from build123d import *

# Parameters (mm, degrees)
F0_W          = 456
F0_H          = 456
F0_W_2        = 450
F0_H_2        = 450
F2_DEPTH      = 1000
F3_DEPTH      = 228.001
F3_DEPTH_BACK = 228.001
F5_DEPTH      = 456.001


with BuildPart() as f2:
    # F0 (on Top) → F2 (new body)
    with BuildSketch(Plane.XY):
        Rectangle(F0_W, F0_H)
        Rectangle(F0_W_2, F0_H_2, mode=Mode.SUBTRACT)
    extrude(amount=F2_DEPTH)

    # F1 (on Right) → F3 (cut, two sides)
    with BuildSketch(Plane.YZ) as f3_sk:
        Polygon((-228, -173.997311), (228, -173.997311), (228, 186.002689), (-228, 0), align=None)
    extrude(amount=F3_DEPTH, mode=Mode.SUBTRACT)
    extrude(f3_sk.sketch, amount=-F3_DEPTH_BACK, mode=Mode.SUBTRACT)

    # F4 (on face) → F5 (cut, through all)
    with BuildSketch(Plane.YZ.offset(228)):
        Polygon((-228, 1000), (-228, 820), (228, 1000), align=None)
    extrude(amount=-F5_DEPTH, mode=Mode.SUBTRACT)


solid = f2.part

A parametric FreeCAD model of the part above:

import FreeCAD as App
import Part
import Sketcher
from FreeCAD import Vector
Q = App.Units.Quantity

doc = App.newDocument("Part")
body = doc.addObject("PartDesign::Body", "Body")

sketch1 = body.newObject("Sketcher::SketchObject", "Sketch")
sketch1.AttachmentSupport = (doc.getObject("XY_Plane"), [""])
sketch1.MapMode = "FlatFace"
sketch1.addGeometry(Part.LineSegment(Vector(-228, 228, 0), Vector(-228, -228, 0)), False)
sketch1.addGeometry(Part.LineSegment(Vector(-228, -228, 0), Vector(228, -228, 0)), False)
sketch1.addGeometry(Part.LineSegment(Vector(228, -228, 0), Vector(228, 228, 0)), False)
sketch1.addGeometry(Part.LineSegment(Vector(228, 228, 0), Vector(-228, 228, 0)), False)
sketch1.addGeometry(Part.LineSegment(Vector(225, -225, 0), Vector(-225, -225, 0)), False)
sketch1.addGeometry(Part.LineSegment(Vector(-225, -225, 0), Vector(-225, 225, 0)), False)
sketch1.addGeometry(Part.LineSegment(Vector(-225, 225, 0), Vector(225, 225, 0)), False)
sketch1.addGeometry(Part.LineSegment(Vector(225, 225, 0), Vector(225, -225, 0)), False)
sketch1.addConstraint(Sketcher.Constraint("Coincident", 0, 2, 1, 1))
sketch1.addConstraint(Sketcher.Constraint("Coincident", 1, 2, 2, 1))
sketch1.addConstraint(Sketcher.Constraint("Coincident", 2, 2, 3, 1))
sketch1.addConstraint(Sketcher.Constraint("Coincident", 3, 2, 0, 1))
sketch1.addConstraint(Sketcher.Constraint("Coincident", 4, 2, 5, 1))
sketch1.addConstraint(Sketcher.Constraint("Coincident", 5, 2, 6, 1))
sketch1.addConstraint(Sketcher.Constraint("Coincident", 6, 2, 7, 1))
sketch1.addConstraint(Sketcher.Constraint("Coincident", 7, 2, 4, 1))
sketch1.addConstraint(Sketcher.Constraint("Vertical", 0))
sketch1.addConstraint(Sketcher.Constraint("Horizontal", 1))
sketch1.addConstraint(Sketcher.Constraint("Vertical", 2))
sketch1.addConstraint(Sketcher.Constraint("Horizontal", 3))
sketch1.addConstraint(Sketcher.Constraint("Horizontal", 4))
sketch1.addConstraint(Sketcher.Constraint("Vertical", 5))
sketch1.addConstraint(Sketcher.Constraint("Horizontal", 6))
sketch1.addConstraint(Sketcher.Constraint("Vertical", 7))
sketch1.addConstraint(Sketcher.Constraint("Symmetric", 0, 2, 2, 2, -1, 1))
sketch1.addConstraint(Sketcher.Constraint("Symmetric", 4, 2, 6, 2, -1, 1))
sketch1.addConstraint(Sketcher.Constraint("Equal", 3, 0))
sketch1.addConstraint(Sketcher.Constraint("Equal", 6, 5))
sketch1.addConstraint(Sketcher.Constraint("DistanceX", 1, 1, 1, 2, Q("456 mm")))
sketch1.addConstraint(Sketcher.Constraint("DistanceX", 4, 2, 4, 1, Q("450 mm")))
pad1 = body.newObject("PartDesign::Pad", "Pad")
pad1.Profile = sketch1
pad1.Length = 1000

sketch2 = body.newObject("Sketcher::SketchObject", "Sketch001")
sketch2.AttachmentSupport = (doc.getObject("YZ_Plane"), [""])
sketch2.MapMode = "FlatFace"
sketch2.addGeometry(Part.LineSegment(Vector(-228, -174, 0), Vector(228, -174, 0)), False)
sketch2.addGeometry(Part.LineSegment(Vector(228, -174, 0), Vector(228, 186, 0)), False)
sketch2.addGeometry(Part.LineSegment(Vector(228, 186, 0), Vector(-228, 0, 0)), False)
sketch2.addGeometry(Part.LineSegment(Vector(-228, 0, 0), Vector(-228, -174, 0)), False)
sketch2.addConstraint(Sketcher.Constraint("Coincident", 0, 2, 1, 1))
sketch2.addConstraint(Sketcher.Constraint("Coincident", 1, 2, 2, 1))
sketch2.addConstraint(Sketcher.Constraint("Coincident", 2, 2, 3, 1))
sketch2.addConstraint(Sketcher.Constraint("Coincident", 3, 2, 0, 1))
sketch2.addConstraint(Sketcher.Constraint("Horizontal", 0))
sketch2.addConstraint(Sketcher.Constraint("Vertical", 1))
sketch2.addConstraint(Sketcher.Constraint("Vertical", 3))
sketch2.addConstraint(Sketcher.Constraint("PointOnObject", 2, 2, -1))
sketch2.addConstraint(Sketcher.Constraint("DistanceX", 0, 1, 0, 2, Q("456 mm")))
sketch2.addConstraint(Sketcher.Constraint("DistanceY", 1, 1, 1, 2, Q("360 mm")))
sketch2.addConstraint(Sketcher.Constraint("DistanceX", -1, 1, 0, 2, Q("228 mm")))
sketch2.addConstraint(Sketcher.Constraint("DistanceY", 3, 2, 3, 1, Q("173.997311 mm")))
pocket1 = body.newObject("PartDesign::Pocket", "Pocket")
pocket1.Profile = sketch2
pocket1.Type = "ThroughAll"
pocket1.Midplane = True

sketch3 = body.newObject("Sketcher::SketchObject", "Sketch002")
sketch3.AttachmentSupport = (doc.getObject("YZ_Plane"), [""])
sketch3.MapMode = "FlatFace"
sketch3.AttachmentOffset = App.Placement(Vector(0, 0, 228), App.Rotation())
sketch3.addGeometry(Part.LineSegment(Vector(-228, 1000, 0), Vector(-228, 820, 0)), False)
sketch3.addGeometry(Part.LineSegment(Vector(-228, 820, 0), Vector(228, 1000, 0)), False)
sketch3.addGeometry(Part.LineSegment(Vector(228, 1000, 0), Vector(-228, 1000, 0)), False)
sketch3.addConstraint(Sketcher.Constraint("Coincident", 0, 2, 1, 1))
sketch3.addConstraint(Sketcher.Constraint("Coincident", 1, 2, 2, 1))
sketch3.addConstraint(Sketcher.Constraint("Coincident", 2, 2, 0, 1))
sketch3.addConstraint(Sketcher.Constraint("Vertical", 0))
sketch3.addConstraint(Sketcher.Constraint("Horizontal", 2))
sketch3.addConstraint(Sketcher.Constraint("DistanceX", 2, 2, 2, 1, Q("456 mm")))
sketch3.addConstraint(Sketcher.Constraint("DistanceY", 0, 2, 0, 1, Q("180 mm")))
sketch3.addConstraint(Sketcher.Constraint("DistanceX", 0, 2, -1, 1, Q("228 mm")))
sketch3.addConstraint(Sketcher.Constraint("DistanceY", -1, 1, 0, 2, Q("820 mm")))
pocket2 = body.newObject("PartDesign::Pocket", "Pocket001")
pocket2.Profile = sketch3
pocket2.Type = "ThroughAll"

doc.recompute()
